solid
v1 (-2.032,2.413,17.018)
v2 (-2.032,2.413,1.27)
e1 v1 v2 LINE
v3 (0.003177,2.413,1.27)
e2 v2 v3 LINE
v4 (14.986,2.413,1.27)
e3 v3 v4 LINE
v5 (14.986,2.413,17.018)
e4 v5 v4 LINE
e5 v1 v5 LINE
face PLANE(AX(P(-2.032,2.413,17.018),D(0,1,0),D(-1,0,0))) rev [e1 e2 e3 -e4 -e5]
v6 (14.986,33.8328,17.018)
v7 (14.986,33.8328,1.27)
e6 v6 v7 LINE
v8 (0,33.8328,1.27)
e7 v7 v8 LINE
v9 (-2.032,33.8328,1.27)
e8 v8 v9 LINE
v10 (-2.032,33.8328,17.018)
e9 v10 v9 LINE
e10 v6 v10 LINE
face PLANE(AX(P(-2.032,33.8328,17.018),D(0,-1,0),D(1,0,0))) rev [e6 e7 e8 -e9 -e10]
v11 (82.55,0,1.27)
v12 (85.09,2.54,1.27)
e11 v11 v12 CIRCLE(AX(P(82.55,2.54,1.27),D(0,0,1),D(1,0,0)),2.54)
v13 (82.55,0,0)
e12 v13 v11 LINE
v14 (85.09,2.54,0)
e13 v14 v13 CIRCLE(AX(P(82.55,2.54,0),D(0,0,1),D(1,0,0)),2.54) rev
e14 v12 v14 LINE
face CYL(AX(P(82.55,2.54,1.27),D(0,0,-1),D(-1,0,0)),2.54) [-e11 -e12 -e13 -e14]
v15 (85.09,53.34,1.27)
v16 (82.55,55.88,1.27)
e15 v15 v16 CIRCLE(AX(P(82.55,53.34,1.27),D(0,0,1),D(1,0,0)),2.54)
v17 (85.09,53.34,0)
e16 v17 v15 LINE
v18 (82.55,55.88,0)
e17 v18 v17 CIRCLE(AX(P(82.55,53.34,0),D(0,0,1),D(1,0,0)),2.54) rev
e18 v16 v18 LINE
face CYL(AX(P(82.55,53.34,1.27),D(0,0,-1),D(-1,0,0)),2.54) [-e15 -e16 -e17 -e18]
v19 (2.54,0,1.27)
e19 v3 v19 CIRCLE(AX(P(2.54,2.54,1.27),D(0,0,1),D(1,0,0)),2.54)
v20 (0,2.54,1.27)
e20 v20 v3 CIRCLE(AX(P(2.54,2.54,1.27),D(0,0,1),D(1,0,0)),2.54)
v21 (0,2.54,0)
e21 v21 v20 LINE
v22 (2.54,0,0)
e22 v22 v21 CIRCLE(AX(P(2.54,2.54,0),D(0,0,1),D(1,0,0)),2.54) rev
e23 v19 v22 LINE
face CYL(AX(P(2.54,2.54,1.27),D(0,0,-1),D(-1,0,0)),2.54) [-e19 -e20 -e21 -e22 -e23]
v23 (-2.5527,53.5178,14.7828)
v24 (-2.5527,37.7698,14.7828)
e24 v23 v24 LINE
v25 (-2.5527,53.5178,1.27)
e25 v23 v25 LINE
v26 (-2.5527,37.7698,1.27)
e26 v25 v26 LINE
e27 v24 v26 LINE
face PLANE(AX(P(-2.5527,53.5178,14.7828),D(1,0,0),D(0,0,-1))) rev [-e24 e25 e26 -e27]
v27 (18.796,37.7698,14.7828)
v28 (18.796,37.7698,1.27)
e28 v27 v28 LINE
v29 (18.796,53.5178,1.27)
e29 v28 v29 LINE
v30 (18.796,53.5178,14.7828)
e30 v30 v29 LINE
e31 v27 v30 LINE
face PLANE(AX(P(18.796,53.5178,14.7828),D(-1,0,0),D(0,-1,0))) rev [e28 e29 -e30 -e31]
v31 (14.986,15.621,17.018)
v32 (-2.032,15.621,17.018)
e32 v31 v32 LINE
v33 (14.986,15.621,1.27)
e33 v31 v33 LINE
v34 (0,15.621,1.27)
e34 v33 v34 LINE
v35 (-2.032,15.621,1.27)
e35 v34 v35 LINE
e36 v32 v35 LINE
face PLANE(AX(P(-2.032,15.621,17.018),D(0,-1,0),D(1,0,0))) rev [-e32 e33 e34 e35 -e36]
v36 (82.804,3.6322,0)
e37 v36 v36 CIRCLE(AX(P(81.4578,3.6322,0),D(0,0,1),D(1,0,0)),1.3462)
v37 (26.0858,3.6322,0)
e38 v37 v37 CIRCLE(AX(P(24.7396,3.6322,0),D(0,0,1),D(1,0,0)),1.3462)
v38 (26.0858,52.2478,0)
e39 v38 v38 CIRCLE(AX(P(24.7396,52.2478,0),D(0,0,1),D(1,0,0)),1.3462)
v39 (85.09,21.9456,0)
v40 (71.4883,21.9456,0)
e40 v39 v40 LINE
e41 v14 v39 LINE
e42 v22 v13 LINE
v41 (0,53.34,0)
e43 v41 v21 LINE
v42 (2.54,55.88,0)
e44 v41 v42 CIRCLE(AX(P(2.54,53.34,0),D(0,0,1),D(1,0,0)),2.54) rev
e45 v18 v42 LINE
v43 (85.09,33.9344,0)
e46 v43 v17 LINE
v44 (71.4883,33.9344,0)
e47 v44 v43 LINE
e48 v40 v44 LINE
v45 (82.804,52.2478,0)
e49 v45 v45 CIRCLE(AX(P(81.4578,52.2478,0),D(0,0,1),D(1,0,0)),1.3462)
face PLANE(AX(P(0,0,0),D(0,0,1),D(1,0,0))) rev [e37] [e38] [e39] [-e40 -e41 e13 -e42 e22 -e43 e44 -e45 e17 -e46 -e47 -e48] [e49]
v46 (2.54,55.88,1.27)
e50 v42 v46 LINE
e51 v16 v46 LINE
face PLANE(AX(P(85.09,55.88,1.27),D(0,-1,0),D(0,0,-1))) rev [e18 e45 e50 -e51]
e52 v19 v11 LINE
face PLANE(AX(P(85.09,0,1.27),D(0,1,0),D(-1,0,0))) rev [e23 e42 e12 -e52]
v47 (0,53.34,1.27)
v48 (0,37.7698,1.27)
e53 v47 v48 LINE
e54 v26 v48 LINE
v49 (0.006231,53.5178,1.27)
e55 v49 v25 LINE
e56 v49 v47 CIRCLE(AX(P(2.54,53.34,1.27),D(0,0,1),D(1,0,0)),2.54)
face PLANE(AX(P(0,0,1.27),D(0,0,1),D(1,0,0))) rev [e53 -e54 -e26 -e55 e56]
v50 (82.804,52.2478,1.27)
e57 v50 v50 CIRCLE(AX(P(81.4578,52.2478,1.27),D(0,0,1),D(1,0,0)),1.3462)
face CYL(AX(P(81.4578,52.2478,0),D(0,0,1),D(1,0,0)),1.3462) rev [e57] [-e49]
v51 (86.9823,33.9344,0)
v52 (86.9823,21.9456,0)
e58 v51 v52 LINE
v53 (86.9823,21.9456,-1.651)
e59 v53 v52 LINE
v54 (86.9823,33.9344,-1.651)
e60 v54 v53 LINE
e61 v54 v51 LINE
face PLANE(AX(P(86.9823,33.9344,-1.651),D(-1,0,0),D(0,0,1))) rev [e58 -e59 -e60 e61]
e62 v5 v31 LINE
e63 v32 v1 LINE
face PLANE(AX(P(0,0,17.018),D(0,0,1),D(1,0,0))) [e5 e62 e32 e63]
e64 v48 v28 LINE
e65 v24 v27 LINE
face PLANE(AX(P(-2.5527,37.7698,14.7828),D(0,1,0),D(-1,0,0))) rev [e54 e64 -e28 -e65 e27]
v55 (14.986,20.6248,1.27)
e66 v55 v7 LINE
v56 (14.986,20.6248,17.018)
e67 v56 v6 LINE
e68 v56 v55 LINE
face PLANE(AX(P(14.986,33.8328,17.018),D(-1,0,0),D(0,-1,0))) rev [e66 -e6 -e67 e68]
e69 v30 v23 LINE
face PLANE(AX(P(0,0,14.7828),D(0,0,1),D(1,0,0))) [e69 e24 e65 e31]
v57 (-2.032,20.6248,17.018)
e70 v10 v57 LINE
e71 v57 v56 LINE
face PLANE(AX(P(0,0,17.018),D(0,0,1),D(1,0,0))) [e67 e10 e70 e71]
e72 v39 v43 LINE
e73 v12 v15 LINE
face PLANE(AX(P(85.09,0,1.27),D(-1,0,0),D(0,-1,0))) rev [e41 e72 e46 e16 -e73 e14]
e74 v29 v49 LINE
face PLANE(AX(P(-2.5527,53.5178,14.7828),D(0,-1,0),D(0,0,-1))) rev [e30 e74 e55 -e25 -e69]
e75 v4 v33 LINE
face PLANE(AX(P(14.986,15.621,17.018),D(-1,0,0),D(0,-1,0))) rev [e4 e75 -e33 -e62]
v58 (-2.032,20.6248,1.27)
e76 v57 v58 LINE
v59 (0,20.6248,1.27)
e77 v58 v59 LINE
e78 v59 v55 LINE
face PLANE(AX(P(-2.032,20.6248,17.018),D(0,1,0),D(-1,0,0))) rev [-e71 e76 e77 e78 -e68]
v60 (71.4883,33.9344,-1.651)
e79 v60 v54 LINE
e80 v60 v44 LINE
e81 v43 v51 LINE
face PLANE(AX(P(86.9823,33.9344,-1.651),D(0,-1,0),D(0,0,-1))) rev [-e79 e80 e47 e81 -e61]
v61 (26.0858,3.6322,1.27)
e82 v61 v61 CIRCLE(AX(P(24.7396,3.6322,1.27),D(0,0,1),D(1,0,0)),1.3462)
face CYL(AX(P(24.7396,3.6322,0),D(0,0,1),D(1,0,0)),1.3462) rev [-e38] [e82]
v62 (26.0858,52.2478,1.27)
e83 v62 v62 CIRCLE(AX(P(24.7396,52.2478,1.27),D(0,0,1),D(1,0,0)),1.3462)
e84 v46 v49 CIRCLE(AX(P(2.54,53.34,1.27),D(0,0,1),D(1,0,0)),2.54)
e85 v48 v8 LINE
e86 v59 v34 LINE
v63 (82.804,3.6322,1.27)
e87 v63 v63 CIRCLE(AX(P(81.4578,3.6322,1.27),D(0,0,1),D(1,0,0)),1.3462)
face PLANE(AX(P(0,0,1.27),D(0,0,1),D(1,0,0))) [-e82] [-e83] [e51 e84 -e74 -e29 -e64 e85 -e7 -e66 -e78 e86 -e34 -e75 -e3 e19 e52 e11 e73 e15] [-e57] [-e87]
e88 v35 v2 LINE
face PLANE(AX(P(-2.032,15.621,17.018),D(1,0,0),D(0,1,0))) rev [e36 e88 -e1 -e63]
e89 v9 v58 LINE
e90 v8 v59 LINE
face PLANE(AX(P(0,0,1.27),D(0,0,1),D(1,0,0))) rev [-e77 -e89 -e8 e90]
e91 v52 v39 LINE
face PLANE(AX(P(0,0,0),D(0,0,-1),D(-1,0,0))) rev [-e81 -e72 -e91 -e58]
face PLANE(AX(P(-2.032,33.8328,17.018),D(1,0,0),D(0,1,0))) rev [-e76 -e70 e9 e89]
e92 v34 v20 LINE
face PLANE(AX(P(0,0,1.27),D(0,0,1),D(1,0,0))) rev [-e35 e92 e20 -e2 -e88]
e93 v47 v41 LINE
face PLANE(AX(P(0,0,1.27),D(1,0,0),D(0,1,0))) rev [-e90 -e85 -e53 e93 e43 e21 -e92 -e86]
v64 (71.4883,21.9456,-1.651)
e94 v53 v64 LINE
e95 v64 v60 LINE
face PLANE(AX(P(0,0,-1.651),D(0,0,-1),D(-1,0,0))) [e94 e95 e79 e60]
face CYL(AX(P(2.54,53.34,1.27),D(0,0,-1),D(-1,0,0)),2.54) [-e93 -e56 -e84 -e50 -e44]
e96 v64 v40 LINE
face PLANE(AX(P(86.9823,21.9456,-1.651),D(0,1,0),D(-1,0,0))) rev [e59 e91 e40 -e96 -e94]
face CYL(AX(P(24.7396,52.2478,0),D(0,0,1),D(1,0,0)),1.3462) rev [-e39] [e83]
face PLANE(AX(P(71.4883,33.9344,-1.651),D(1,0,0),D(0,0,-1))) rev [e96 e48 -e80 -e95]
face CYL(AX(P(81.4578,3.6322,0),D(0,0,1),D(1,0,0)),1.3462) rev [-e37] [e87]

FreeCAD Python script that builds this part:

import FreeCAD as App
import Part
import Sketcher
Q = App.Units.Quantity


def edges_at(feature, points):
    """Names of the edges that pass closest to the given points."""
    edges = feature.Shape.Edges
    near = lambda p: min(range(len(edges)), key=lambda i: edges[i].distToShape(Part.Vertex(*p))[0])
    return sorted({f"Edge{near(p) + 1}" for p in points})


def add_polygon(sketch, points):
    """Adds a closed chain of lines whose ends are joined by coincident constraints."""
    first, n = sketch.GeometryCount, len(points)
    for a, b in zip(points, points[1:] + points[:1]):
        sketch.addGeometry(Part.LineSegment(App.Vector(*a, 0), App.Vector(*b, 0)), False)
    for i in range(n):
        sketch.addConstraint(Sketcher.Constraint("Coincident", first + i, 2, first + (i + 1) % n, 1))

doc = App.newDocument("Part")
body = doc.addObject("PartDesign::Body", "Body")

# Sketch on XY plane
sketch1 = body.newObject("Sketcher::SketchObject", "Sketch")
sketch1.AttachmentSupport = (doc.getObject("XY_Plane"), [""])
sketch1.MapMode = "FlatFace"
add_polygon(sketch1, [(0, 56), (0, 0), (85, 0), (85, 56)])  # lines 0-3
sketch1.addConstraint([
    Sketcher.Constraint("Vertical", 0),
    Sketcher.Constraint("Horizontal", 1),
    Sketcher.Constraint("Vertical", 2),
    Sketcher.Constraint("Horizontal", 3),
    Sketcher.Constraint("Coincident", 0, 2, -1, 1),
    Sketcher.Constraint("DistanceY", 0, 2, 0, 1, Q("2.2 in")),
    Sketcher.Constraint("DistanceX", 1, 1, 1, 2, Q("3.35 in")),
])
pad1 = body.newObject("PartDesign::Pad", "Pad")
pad1.Profile = sketch1
pad1.Length = Q("0.05 in")
doc.recompute()

fillet = body.newObject("PartDesign::Fillet", "Fillet")
fillet.Base = (pad1, edges_at(pad1, [
    (85.09, 0, 0.635),
    (0, 0, 0.635),
    (0, 55.88, 0.635),
    (85.09, 55.88, 0.635),
]))
fillet.Radius = Q("0.1 in")

# Sketch on XY plane
sketch2 = body.newObject("Sketcher::SketchObject", "Sketch001")
sketch2.AttachmentSupport = (doc.getObject("XY_Plane"), [""])
sketch2.MapMode = "FlatFace"
sketch2.AttachmentOffset = App.Placement(App.Vector(0, 0, 0.05 * 25.4), App.Rotation())
sketch2.addGeometry([
    Part.Circle(App.Vector(81.5, 52.2, 0), App.Vector(0, 0, 1), 1.3),
    Part.Circle(App.Vector(24.7, 52.2, 0), App.Vector(0, 0, 1), 1.3),
    Part.Circle(App.Vector(24.7, 3.6, 0), App.Vector(0, 0, 1), 1.3),
    Part.Circle(App.Vector(81.5, 3.6, 0), App.Vector(0, 0, 1), 1.3),
], False)
sketch2.addConstraint([
    Sketcher.Constraint("Equal", 0, 1),
    Sketcher.Constraint("Equal", 1, 2),
    Sketcher.Constraint("Equal", 2, 3),
    Sketcher.Constraint("Horizontal", 0, 3, 1, 3),
    Sketcher.Constraint("Horizontal", 2, 3, 3, 3),
    Sketcher.Constraint("Vertical", 1, 3, 2, 3),
    Sketcher.Constraint("Vertical", 0, 3, 3, 3),
    Sketcher.Constraint("Diameter", 0, Q("0.106 in")),
    Sketcher.Constraint("DistanceX", -1, 1, 0, 3, Q("3.207 in")),
    Sketcher.Constraint("DistanceY", -1, 1, 0, 3, Q("2.057 in")),
    Sketcher.Constraint("DistanceX", -1, 1, 1, 3, Q("0.974 in")),
    Sketcher.Constraint("DistanceY", -1, 1, 2, 3, Q("0.143 in")),
])
pocket1 = body.newObject("PartDesign::Pocket", "Pocket")
pocket1.Profile = sketch2
pocket1.Length = Q("0.05 in")

# Sketch on XY plane
sketch3 = body.newObject("Sketcher::SketchObject", "Sketch002")
sketch3.AttachmentSupport = (doc.getObject("XY_Plane"), [""])
sketch3.MapMode = "FlatFace"
sketch3.AttachmentOffset = App.Placement(App.Vector(0, 0, 0.05 * 25.4), App.Rotation())
add_polygon(sketch3, [(-2, 34), (-2, 21), (15, 21), (15, 34)])  # lines 0-3
add_polygon(sketch3, [(-2, 16), (-2, 2), (15, 2), (15, 16)])  # lines 4-7
sketch3.addConstraint([
    Sketcher.Constraint("Vertical", 0),
    Sketcher.Constraint("Horizontal", 1),
    Sketcher.Constraint("Vertical", 2),
    Sketcher.Constraint("Horizontal", 3),
    Sketcher.Constraint("Vertical", 4),
    Sketcher.Constraint("Horizontal", 5),
    Sketcher.Constraint("Vertical", 6),
    Sketcher.Constraint("Horizontal", 7),
    Sketcher.Constraint("Vertical", 3, 2, 4, 2),
    Sketcher.Constraint("Vertical", 2, 2, 5, 2),
    Sketcher.Constraint("Equal", 2, 4),
    Sketcher.Constraint("DistanceX", 1, 1, 1, 2, Q("0.67 in")),
    Sketcher.Constraint("DistanceY", 0, 2, 0, 1, Q("0.52 in")),
    Sketcher.Constraint("DistanceX", 0, 2, -1, 1, Q("0.08 in")),
    Sketcher.Constraint("DistanceY", -1, 1, 0, 2, Q("0.812 in")),
    Sketcher.Constraint("DistanceY", -1, 1, 4, 2, Q("0.095 in")),
])
pad2 = body.newObject("PartDesign::Pad", "Pad001")
pad2.Profile = sketch3
pad2.Length = Q("0.62 in")

# Sketch on XY plane
sketch4 = body.newObject("Sketcher::SketchObject", "Sketch003")
sketch4.AttachmentSupport = (doc.getObject("XY_Plane"), [""])
sketch4.MapMode = "FlatFace"
sketch4.AttachmentOffset = App.Placement(App.Vector(0, 0, 0.05 * 25.4), App.Rotation())
add_polygon(sketch4, [(-3, 54), (-3, 38), (19, 38), (19, 54)])  # lines 0-3
sketch4.addConstraint([
    Sketcher.Constraint("Vertical", 0),
    Sketcher.Constraint("Horizontal", 1),
    Sketcher.Constraint("Vertical", 2),
    Sketcher.Constraint("Horizontal", 3),
    Sketcher.Constraint("DistanceY", 0, 2, 0, 1, Q("0.62 in")),
    Sketcher.Constraint("DistanceX", -1, 1, 1, 2, Q("0.74 in")),
    Sketcher.Constraint("DistanceX", 1, 1, 1, 2, Q("0.8405 in")),
    Sketcher.Constraint("DistanceY", -1, 1, 0, 2, Q("1.487 in")),
])
pad3 = body.newObject("PartDesign::Pad", "Pad002")
pad3.Profile = sketch4
pad3.Length = Q("0.532 in")

# Sketch on XY plane
sketch5 = body.newObject("Sketcher::SketchObject", "Sketch004")
sketch5.AttachmentSupport = (doc.getObject("XY_Plane"), [""])
sketch5.MapMode = "FlatFace"
add_polygon(sketch5, [(87, 34), (87, 22), (71, 22), (71, 34)])  # lines 0-3
sketch5.addConstraint([
    Sketcher.Constraint("Vertical", 0),
    Sketcher.Constraint("Horizontal", 1),
    Sketcher.Constraint("Vertical", 2),
    Sketcher.Constraint("Horizontal", 3),
    Sketcher.Constraint("DistanceX", 1, 2, 1, 1, Q("0.61 in")),
    Sketcher.Constraint("DistanceY", 0, 2, 0, 1, Q("0.472 in")),
    Sketcher.Constraint("DistanceY", -1, 1, 0, 2, Q("0.864 in")),
    Sketcher.Constraint("DistanceX", -1, 1, 0, 2, Q("3.4245 in")),
])
pad4 = body.newObject("PartDesign::Pad", "Pad003")
pad4.Profile = sketch5
pad4.Length = Q("0.065 in")
pad4.Reversed = True

doc.recompute()
